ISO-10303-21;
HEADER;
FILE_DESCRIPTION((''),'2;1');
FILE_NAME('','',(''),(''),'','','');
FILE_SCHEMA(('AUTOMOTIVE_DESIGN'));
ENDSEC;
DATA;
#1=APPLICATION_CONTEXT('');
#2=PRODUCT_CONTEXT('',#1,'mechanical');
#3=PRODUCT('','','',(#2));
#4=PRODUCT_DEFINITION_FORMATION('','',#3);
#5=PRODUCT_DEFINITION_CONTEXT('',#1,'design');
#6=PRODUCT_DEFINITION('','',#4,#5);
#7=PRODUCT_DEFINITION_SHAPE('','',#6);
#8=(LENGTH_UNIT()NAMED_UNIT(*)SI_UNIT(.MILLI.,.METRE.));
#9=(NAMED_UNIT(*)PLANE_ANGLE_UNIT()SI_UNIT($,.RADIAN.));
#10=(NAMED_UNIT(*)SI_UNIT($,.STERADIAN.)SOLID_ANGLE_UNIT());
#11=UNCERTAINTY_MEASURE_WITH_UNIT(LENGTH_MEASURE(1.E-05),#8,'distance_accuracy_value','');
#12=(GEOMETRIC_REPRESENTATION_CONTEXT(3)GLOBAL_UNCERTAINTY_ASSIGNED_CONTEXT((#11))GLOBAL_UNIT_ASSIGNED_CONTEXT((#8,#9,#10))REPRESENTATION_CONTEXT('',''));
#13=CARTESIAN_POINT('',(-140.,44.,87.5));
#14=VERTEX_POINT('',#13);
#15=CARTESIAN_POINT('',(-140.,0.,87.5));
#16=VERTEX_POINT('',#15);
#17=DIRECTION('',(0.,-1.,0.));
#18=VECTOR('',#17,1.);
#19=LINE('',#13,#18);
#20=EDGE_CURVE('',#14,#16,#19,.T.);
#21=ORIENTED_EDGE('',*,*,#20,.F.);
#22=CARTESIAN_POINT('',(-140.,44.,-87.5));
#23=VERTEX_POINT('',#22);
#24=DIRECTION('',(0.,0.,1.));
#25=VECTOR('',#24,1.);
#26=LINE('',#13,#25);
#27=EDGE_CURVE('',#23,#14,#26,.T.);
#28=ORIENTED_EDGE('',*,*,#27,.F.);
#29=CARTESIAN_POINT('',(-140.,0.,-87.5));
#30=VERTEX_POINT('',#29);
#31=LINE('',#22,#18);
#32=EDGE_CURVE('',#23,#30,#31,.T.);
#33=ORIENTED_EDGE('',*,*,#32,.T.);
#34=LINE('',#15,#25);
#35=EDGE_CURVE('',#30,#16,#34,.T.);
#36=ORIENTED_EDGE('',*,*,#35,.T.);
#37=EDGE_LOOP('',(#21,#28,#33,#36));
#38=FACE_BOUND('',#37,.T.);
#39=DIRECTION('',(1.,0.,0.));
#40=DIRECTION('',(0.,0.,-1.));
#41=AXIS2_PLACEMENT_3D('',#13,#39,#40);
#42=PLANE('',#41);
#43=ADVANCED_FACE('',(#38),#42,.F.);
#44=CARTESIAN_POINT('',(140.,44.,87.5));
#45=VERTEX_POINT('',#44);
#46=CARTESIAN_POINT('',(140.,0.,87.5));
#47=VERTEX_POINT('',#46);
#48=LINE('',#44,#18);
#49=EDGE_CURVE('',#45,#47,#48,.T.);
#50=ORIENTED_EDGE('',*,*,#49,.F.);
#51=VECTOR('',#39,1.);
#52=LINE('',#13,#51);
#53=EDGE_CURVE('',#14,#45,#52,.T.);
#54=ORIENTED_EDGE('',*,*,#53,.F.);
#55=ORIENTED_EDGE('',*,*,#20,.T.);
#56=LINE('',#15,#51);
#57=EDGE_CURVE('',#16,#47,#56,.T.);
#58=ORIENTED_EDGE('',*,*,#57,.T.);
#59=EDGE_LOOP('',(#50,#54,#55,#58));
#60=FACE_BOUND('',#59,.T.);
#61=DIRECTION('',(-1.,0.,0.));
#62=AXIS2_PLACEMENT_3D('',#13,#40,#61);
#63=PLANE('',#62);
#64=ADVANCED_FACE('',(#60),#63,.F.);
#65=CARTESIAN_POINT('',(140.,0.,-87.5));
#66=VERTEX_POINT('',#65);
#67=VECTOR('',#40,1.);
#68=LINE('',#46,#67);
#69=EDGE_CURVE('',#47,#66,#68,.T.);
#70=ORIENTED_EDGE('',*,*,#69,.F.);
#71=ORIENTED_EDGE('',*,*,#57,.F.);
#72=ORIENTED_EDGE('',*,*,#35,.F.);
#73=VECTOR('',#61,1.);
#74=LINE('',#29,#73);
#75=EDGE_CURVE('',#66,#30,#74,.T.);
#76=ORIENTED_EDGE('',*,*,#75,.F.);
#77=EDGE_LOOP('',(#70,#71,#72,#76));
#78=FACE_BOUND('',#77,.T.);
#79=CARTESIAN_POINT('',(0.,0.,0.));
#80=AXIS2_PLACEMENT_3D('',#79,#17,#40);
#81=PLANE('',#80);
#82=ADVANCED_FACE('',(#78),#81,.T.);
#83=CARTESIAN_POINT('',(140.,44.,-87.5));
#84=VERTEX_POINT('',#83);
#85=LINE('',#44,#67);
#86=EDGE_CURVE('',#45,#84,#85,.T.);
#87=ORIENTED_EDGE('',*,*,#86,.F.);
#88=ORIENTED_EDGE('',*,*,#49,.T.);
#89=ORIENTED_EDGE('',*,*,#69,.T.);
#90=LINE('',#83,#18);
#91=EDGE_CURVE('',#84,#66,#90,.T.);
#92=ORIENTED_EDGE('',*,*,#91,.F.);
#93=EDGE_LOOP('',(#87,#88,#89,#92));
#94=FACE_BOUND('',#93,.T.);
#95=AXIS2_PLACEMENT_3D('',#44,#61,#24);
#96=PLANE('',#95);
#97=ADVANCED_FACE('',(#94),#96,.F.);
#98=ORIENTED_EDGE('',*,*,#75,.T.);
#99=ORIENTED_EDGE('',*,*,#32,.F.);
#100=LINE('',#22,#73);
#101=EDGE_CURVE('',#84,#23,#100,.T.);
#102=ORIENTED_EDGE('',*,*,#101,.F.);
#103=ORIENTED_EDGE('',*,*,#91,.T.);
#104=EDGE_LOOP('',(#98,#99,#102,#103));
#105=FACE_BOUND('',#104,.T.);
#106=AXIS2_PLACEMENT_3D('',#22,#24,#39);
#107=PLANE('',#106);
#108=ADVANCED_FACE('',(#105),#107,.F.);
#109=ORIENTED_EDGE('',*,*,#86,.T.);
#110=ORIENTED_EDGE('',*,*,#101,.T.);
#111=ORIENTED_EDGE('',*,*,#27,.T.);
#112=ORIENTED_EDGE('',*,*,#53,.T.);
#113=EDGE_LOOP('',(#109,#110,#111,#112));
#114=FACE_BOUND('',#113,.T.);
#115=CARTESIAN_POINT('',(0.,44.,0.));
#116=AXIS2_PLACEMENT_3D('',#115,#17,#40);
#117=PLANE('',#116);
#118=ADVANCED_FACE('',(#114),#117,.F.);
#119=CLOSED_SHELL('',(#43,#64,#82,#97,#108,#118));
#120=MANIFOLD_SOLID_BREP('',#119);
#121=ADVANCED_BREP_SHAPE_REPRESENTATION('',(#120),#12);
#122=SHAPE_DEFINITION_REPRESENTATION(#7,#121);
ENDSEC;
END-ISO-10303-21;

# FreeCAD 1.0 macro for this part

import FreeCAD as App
import Part
import Sketcher
from FreeCAD import Vector
Q = App.Units.Quantity


def add_polygon(sketch, points):
    """Adds a closed chain of lines whose ends are joined by coincident constraints."""
    first, n = sketch.GeometryCount, len(points)
    for a, b in zip(points, points[1:] + points[:1]):
        sketch.addGeometry(Part.LineSegment(App.Vector(*a, 0), App.Vector(*b, 0)), False)
    for i in range(n):
        sketch.addConstraint(Sketcher.Constraint("Coincident", first + i, 2, first + (i + 1) % n, 1))

doc = App.newDocument("Part")
body = doc.addObject("PartDesign::Body", "Body")

# Sketch on XZ plane
sketch1 = body.newObject("Sketcher::SketchObject", "Sketch")
sketch1.AttachmentSupport = (doc.getObject("XZ_Plane"), [""])
sketch1.MapMode = "FlatFace"
add_polygon(sketch1, [(-140, -88), (-140, 88), (140, 88), (140, -88)])  # lines 0-3
sketch1.addConstraint(Sketcher.Constraint("Vertical", 0))
sketch1.addConstraint(Sketcher.Constraint("Horizontal", 1))
sketch1.addConstraint(Sketcher.Constraint("Vertical", 2))
sketch1.addConstraint(Sketcher.Constraint("Horizontal", 3))
sketch1.addConstraint(Sketcher.Constraint("Symmetric", 0, 2, 2, 2, -1, 1))
sketch1.addConstraint(Sketcher.Constraint("DistanceX", 1, 1, 1, 2, Q("280 mm")))
sketch1.addConstraint(Sketcher.Constraint("DistanceY", 0, 1, 0, 2, Q("175 mm")))
pad1 = body.newObject("PartDesign::Pad", "Pad")
pad1.Profile = sketch1
pad1.Length = 44
pad1.Reversed = True

doc.recompute()
